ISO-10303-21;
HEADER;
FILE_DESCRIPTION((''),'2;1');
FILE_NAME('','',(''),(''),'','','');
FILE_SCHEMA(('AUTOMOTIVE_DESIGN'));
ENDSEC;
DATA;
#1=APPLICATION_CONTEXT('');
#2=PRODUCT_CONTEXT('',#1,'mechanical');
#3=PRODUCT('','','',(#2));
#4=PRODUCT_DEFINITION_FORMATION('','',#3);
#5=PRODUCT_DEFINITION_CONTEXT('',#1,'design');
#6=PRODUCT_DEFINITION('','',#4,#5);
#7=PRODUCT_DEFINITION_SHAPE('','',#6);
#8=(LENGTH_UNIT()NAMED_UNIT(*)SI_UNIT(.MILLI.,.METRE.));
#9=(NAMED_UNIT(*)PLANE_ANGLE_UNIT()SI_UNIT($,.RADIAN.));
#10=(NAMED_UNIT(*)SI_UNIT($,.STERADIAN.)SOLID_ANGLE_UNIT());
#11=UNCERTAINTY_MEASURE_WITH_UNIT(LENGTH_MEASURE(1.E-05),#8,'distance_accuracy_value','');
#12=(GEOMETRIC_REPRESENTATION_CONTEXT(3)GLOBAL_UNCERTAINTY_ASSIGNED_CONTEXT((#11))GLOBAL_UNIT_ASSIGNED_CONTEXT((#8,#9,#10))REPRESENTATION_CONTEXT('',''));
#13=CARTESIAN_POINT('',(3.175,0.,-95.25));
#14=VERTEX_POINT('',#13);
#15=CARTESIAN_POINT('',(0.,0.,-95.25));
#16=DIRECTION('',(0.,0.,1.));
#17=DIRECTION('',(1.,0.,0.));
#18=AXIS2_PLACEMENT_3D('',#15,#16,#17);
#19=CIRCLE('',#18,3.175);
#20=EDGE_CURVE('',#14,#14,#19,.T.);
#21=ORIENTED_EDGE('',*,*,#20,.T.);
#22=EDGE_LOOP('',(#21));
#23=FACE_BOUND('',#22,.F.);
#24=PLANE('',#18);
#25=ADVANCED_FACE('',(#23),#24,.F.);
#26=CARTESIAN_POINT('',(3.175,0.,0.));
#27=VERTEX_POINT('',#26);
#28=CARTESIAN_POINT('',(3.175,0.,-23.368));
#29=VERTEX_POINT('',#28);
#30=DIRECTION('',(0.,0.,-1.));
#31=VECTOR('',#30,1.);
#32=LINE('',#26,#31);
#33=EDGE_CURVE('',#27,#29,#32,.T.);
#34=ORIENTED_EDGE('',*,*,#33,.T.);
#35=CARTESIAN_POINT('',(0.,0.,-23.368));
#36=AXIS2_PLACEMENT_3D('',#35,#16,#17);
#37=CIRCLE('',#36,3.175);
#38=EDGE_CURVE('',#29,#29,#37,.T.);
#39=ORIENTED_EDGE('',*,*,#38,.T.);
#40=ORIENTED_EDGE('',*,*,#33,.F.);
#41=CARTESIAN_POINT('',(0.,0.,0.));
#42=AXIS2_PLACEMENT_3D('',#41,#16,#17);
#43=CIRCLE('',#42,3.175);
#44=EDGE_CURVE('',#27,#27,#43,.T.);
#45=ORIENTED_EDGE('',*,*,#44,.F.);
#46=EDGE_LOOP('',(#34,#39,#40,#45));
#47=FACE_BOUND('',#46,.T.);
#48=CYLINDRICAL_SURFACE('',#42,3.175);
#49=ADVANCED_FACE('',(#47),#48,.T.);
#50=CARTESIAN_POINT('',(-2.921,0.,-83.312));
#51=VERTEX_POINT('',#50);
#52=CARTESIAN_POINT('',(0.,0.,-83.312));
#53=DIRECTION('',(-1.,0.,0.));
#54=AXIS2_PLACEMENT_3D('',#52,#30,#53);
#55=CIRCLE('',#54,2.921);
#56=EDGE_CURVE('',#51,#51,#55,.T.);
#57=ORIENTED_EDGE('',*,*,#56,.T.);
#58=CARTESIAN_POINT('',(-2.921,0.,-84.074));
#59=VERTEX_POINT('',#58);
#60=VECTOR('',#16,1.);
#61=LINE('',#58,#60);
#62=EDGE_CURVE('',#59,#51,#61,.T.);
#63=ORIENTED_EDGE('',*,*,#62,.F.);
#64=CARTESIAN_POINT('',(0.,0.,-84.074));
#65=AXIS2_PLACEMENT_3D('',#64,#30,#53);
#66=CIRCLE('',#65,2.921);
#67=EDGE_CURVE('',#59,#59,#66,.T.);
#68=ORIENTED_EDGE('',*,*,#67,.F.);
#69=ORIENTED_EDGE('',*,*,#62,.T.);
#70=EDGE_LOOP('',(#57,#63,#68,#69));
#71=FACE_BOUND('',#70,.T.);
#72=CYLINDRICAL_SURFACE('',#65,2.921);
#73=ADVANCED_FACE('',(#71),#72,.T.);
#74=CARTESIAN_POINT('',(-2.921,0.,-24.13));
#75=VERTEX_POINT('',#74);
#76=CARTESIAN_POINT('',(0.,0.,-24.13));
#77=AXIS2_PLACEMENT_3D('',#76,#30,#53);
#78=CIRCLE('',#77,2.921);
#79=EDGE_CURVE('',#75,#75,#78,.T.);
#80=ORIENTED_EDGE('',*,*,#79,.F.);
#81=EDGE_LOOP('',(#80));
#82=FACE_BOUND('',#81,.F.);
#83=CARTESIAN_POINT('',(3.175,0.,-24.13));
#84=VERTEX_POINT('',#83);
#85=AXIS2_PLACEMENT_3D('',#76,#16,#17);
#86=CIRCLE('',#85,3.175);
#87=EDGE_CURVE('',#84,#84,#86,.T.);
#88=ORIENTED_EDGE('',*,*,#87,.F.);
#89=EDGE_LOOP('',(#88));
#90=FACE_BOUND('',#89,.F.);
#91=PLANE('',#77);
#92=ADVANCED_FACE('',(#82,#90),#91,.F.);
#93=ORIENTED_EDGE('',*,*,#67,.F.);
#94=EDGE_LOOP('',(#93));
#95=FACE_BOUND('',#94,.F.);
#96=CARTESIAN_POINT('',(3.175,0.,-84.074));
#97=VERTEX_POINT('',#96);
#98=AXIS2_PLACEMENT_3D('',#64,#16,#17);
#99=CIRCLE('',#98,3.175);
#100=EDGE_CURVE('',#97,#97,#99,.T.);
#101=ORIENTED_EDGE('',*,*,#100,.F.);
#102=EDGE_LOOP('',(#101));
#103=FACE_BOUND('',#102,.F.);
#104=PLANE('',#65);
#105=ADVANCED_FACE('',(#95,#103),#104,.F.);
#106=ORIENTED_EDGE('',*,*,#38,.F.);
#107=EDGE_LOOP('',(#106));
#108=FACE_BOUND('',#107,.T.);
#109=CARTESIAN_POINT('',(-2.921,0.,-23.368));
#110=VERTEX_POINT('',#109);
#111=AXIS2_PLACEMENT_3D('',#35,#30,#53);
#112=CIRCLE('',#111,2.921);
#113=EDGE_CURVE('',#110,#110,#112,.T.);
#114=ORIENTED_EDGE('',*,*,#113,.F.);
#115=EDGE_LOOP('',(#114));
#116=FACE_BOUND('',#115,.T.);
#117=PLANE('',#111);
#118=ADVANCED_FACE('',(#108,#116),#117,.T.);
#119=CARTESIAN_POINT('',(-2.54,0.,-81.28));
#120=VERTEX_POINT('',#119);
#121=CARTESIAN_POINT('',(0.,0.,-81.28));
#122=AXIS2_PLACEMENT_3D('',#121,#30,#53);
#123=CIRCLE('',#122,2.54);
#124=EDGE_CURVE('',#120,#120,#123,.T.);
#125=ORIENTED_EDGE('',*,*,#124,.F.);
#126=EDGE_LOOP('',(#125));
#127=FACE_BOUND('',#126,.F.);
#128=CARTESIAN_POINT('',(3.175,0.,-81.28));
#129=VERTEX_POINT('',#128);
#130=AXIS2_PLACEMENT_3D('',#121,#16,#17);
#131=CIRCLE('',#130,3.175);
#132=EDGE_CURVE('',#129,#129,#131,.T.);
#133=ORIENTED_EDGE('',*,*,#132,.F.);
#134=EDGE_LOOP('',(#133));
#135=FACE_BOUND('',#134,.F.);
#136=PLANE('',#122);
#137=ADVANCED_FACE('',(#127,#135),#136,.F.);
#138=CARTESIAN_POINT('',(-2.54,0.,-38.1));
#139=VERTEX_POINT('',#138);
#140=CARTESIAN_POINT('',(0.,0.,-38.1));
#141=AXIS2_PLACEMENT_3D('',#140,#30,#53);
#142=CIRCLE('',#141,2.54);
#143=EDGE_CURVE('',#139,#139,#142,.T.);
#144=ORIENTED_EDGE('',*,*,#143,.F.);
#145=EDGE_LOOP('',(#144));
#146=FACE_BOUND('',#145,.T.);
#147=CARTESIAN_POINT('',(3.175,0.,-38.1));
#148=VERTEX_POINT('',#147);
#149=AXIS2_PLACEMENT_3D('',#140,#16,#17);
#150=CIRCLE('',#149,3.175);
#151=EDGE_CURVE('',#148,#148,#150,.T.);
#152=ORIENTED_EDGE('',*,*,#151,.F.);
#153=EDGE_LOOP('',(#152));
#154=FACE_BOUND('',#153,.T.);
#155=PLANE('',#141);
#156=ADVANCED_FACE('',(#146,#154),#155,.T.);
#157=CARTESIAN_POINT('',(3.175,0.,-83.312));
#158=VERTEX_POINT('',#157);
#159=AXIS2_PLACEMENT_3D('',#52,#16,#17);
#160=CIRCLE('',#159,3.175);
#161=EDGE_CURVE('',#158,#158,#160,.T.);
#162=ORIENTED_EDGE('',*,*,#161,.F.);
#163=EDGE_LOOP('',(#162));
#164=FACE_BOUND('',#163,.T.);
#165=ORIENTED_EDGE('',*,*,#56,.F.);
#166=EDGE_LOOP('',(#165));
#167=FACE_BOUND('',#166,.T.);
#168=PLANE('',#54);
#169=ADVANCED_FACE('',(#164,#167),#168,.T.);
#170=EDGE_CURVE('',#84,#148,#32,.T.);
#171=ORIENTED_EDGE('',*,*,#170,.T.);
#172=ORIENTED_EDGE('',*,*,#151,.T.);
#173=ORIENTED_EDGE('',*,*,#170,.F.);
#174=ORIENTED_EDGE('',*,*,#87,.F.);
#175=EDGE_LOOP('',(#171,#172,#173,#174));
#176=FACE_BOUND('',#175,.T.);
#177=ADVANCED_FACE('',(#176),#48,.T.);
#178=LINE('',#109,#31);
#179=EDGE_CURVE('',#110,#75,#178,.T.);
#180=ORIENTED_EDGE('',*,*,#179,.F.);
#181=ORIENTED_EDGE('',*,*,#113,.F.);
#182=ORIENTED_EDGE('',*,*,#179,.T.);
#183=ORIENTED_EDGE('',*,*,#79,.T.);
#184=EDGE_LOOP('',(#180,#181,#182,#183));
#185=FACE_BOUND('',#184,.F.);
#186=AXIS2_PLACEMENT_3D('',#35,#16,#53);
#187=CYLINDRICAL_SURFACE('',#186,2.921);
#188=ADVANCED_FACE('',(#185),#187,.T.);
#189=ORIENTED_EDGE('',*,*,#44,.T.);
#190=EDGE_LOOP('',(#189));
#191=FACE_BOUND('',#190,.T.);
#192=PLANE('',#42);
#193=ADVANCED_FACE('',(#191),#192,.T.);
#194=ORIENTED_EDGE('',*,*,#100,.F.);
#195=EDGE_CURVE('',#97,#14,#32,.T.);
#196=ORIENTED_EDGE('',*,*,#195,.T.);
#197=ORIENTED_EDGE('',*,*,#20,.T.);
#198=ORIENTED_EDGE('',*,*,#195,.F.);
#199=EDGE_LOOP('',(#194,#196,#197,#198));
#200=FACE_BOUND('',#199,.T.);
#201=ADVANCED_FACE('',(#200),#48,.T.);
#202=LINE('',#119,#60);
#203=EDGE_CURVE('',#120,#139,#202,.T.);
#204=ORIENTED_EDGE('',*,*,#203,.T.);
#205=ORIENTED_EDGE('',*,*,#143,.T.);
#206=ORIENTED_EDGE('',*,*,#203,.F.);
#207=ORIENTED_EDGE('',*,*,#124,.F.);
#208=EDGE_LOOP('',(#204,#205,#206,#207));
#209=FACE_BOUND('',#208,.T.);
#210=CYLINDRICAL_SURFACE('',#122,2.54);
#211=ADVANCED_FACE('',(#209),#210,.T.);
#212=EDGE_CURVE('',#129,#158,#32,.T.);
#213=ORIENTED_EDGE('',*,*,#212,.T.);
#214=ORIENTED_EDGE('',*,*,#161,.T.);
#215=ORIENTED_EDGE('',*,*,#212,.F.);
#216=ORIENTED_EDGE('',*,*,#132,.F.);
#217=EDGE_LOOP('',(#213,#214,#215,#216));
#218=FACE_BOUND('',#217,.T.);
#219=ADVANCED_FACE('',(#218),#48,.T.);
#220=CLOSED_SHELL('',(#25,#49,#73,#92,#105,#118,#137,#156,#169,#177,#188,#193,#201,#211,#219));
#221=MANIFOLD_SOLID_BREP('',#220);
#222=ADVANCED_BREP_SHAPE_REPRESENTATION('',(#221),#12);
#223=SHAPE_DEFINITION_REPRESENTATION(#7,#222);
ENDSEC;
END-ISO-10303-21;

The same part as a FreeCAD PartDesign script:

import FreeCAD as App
import Part
import Sketcher
Q = App.Units.Quantity

doc = App.newDocument("Part")
body = doc.addObject("PartDesign::Body", "Body")

# Sketch on XY plane
sketch1 = doc.addObject("Sketcher::SketchObject", "Sketch")
body.addObject(sketch1)
sketch1.AttachmentSupport = (doc.XY_Plane, [""])
sketch1.MapMode = "FlatFace"
sketch1.addGeometry(Part.Circle(App.Vector(0, 0, 0), App.Vector(0, 0, 1), 3.2), False)
sketch1.addConstraint([
    Sketcher.Constraint("Coincident", 0, 3, -1, 1),
    Sketcher.Constraint("Diameter", 0, Q("0.25 in")),
])
pad1 = doc.addObject("PartDesign::Pad", "Pad")
body.addObject(pad1)
pad1.Profile = sketch1
pad1.Length = Q("3.75 in")
pad1.Reversed = True

# Sketch on XY plane
sketch2 = doc.addObject("Sketcher::SketchObject", "Sketch001")
body.addObject(sketch2)
sketch2.AttachmentSupport = (doc.XY_Plane, [""])
sketch2.MapMode = "FlatFace"
sketch2.AttachmentOffset = App.Placement(App.Vector(0, 0, -3.2 * 25.4), App.Rotation())
sketch2.addGeometry([
    Part.Circle(App.Vector(0, 0, 0), App.Vector(0, 0, 1), 3.2),
    Part.Circle(App.Vector(0, 0, 0), App.Vector(0, 0, 1), 2.5),
], False)
sketch2.addConstraint([
    Sketcher.Constraint("Coincident", 0, 3, -1, 1),
    Sketcher.Constraint("Coincident", 1, 3, -1, 1),
    Sketcher.Constraint("Diameter", 1, Q("0.2 in")),
    Sketcher.Constraint("Diameter", 0, Q("0.25 in")),
])
pocket1 = doc.addObject("PartDesign::Pocket", "Pocket")
body.addObject(pocket1)
pocket1.Profile = sketch2
pocket1.Length = Q("1.7 in")
pocket1.Reversed = True

# Sketch on XY plane
sketch3 = doc.addObject("Sketcher::SketchObject", "Sketch002")
body.addObject(sketch3)
sketch3.AttachmentSupport = (doc.XY_Plane, [""])
sketch3.MapMode = "FlatFace"
sketch3.AttachmentOffset = App.Placement(App.Vector(0, 0, -3.31 * 25.4), App.Rotation())
sketch3.addGeometry([
    Part.Circle(App.Vector(0, 0, 0), App.Vector(0, 0, 1), 3.2),
    Part.Circle(App.Vector(0, 0, 0), App.Vector(0, 0, 1), 2.9),
], False)
sketch3.addConstraint([
    Sketcher.Constraint("Coincident", 0, 3, -1, 1),
    Sketcher.Constraint("Coincident", 1, 3, -1, 1),
    Sketcher.Constraint("Diameter", 0, Q("0.25 in")),
    Sketcher.Constraint("Diameter", 1, Q("0.23 in")),
])
pocket2 = doc.addObject("PartDesign::Pocket", "Pocket001")
body.addObject(pocket2)
pocket2.Profile = sketch3
pocket2.Length = Q("0.03 in")
pocket2.Reversed = True

# Sketch on XY plane
sketch4 = doc.addObject("Sketcher::SketchObject", "Sketch003")
body.addObject(sketch4)
sketch4.AttachmentSupport = (doc.XY_Plane, [""])
sketch4.MapMode = "FlatFace"
sketch4.AttachmentOffset = App.Placement(App.Vector(0, 0, -0.92 * 25.4), App.Rotation())
sketch4.addGeometry([
    Part.Circle(App.Vector(0, 0, 0), App.Vector(0, 0, 1), 3.2),
    Part.Circle(App.Vector(0, 0, 0), App.Vector(0, 0, 1), 2.9),
], False)
sketch4.addConstraint([
    Sketcher.Constraint("Coincident", 0, 3, -1, 1),
    Sketcher.Constraint("Coincident", 1, 3, -1, 1),
    Sketcher.Constraint("Diameter", 0, Q("0.25 in")),
    Sketcher.Constraint("Diameter", 1, Q("0.23 in")),
])
pocket3 = doc.addObject("PartDesign::Pocket", "Pocket002")
body.addObject(pocket3)
pocket3.Profile = sketch4
pocket3.Length = Q("0.03 in")

doc.recompute()
